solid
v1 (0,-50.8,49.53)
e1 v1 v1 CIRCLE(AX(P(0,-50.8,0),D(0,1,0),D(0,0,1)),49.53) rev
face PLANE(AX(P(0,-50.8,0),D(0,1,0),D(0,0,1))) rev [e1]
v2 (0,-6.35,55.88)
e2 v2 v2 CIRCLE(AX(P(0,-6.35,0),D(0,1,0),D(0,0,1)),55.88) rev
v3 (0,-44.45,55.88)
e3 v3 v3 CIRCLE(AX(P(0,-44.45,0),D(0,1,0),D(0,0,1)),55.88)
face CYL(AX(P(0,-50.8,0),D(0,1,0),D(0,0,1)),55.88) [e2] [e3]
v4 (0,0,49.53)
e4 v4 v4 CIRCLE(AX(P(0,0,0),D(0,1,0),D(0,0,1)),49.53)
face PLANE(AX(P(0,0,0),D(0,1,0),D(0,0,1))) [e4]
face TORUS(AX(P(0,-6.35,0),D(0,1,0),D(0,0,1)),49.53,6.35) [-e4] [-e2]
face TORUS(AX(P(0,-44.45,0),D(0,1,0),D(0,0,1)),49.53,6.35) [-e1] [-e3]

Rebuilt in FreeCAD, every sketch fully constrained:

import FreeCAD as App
import Part
import Sketcher

V = App.Vector
Q = App.Units.Quantity


def edges_at(feature, points):
    """Names of the edges that pass closest to the given points."""
    edges = feature.Shape.Edges
    near = lambda p: min(range(len(edges)), key=lambda i: edges[i].distToShape(Part.Vertex(*p))[0])
    return sorted({f"Edge{near(p) + 1}" for p in points})

doc = App.newDocument("Part")
body = doc.addObject("PartDesign::Body", "Body")

# Sketch on XZ plane
sketch1 = body.newObject("Sketcher::SketchObject", "Sketch")
sketch1.AttachmentSupport = (doc.getObject("XZ_Plane"), [""])
sketch1.MapMode = "FlatFace"
sketch1.addGeometry(Part.Circle(V(0, 0, 0), V(0, 0, 1), 56), False)
sketch1.addConstraint(Sketcher.Constraint("Coincident", 0, 3, -1, 1))
sketch1.addConstraint(Sketcher.Constraint("Diameter", 0, Q("4.4 in")))
pad1 = body.newObject("PartDesign::Pad", "Pad")
pad1.Profile = sketch1
pad1.Length = Q("2 in")
doc.recompute()

fillet = body.newObject("PartDesign::Fillet", "Fillet")
fillet.Base = (pad1, edges_at(pad1, [(0, 0, -55.88), (0, -50.8, -55.88)]))
fillet.Radius = Q("0.25 in")

doc.recompute()
